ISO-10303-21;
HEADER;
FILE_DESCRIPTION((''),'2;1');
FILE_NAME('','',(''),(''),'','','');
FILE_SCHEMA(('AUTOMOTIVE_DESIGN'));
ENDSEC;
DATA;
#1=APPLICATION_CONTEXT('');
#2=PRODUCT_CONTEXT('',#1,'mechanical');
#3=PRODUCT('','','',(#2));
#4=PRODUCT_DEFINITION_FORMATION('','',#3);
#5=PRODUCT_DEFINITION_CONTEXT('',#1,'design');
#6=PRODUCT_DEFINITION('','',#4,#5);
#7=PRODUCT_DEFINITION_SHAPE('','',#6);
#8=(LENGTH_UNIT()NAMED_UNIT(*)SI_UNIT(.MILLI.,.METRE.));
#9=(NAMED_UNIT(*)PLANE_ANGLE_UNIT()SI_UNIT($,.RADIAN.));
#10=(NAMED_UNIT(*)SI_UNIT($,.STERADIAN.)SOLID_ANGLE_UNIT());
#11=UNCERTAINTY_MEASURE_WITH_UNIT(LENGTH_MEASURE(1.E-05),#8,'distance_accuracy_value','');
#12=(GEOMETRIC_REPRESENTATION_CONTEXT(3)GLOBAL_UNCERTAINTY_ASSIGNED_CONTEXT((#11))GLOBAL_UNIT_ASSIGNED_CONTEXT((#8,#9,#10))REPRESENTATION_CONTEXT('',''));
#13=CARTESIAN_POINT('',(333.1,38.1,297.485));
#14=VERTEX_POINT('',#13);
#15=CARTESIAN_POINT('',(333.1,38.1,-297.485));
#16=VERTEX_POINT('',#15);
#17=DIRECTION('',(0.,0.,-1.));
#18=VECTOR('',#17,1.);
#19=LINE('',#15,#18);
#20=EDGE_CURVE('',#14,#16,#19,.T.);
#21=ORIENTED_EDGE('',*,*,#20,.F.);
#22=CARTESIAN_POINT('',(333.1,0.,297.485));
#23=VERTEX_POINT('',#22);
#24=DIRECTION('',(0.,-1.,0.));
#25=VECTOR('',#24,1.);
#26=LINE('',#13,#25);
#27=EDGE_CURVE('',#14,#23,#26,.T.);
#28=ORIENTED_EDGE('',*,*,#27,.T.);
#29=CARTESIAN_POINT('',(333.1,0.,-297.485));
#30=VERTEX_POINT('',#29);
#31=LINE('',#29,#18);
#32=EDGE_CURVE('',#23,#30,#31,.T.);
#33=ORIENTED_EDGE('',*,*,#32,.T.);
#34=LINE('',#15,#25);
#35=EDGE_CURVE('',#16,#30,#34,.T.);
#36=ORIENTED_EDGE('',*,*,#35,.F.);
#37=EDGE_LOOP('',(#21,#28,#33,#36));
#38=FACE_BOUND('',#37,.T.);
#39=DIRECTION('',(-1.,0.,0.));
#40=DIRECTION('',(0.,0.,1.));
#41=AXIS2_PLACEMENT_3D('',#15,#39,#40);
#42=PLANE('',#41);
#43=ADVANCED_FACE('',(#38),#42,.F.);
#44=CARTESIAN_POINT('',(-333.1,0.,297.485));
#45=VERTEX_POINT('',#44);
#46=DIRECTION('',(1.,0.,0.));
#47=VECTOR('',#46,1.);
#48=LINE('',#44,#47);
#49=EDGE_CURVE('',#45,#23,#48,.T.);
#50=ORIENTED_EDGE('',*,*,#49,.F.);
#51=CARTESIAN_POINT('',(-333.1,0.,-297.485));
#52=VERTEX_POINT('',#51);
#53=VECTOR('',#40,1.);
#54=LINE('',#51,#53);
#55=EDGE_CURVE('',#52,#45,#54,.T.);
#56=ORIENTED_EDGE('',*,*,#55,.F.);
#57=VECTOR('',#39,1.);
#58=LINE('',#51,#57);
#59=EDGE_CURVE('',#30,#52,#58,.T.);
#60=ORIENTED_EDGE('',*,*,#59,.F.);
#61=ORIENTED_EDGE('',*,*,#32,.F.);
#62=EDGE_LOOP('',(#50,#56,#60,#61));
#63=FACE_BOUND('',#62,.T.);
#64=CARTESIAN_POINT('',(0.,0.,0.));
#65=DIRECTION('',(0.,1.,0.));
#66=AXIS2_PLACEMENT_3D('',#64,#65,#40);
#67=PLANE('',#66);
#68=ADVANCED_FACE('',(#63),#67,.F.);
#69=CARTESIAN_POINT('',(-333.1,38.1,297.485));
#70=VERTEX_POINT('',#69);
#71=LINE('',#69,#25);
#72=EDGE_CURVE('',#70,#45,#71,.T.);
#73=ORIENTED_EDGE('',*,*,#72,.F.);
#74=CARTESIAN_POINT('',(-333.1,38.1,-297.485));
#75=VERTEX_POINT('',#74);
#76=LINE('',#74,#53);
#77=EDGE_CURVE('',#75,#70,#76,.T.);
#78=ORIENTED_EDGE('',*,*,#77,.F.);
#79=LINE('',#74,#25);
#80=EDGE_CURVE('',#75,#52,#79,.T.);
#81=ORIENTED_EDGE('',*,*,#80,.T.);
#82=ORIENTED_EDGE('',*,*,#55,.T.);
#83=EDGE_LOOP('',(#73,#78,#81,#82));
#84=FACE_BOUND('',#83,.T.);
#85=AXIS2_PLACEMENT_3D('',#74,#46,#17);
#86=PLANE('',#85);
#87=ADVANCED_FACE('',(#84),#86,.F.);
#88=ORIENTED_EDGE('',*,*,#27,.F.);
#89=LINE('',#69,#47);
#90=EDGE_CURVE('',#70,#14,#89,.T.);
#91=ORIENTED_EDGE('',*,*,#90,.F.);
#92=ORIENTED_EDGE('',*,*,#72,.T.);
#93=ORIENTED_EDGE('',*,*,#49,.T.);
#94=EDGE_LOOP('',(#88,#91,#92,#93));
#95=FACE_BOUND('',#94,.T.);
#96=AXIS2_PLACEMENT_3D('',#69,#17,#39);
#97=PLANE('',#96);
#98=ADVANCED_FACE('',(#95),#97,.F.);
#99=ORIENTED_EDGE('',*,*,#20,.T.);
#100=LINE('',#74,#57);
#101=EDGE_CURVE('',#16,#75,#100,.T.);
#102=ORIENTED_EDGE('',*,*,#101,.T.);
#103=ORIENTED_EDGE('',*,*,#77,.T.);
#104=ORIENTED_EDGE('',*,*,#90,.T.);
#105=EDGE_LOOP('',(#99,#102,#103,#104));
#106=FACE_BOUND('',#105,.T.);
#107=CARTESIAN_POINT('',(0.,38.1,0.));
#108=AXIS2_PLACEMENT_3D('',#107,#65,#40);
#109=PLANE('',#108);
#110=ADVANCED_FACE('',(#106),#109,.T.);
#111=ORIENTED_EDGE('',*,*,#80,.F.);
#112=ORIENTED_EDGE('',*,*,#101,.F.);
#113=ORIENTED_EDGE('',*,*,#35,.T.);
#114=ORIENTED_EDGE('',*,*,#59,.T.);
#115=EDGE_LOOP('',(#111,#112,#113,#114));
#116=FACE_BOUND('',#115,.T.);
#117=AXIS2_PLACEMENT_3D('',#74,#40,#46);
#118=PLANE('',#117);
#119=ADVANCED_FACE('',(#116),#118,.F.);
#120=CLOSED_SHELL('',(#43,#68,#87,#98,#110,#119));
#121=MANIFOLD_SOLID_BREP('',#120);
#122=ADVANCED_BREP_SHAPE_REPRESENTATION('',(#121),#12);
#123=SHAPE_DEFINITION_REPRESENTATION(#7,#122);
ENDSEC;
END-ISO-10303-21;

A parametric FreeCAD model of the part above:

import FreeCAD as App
import Part
import Sketcher

V = App.Vector

doc = App.newDocument("Part")
params = doc.addObject("Spreadsheet::Sheet", "Params")
for row, (alias, value) in enumerate([
    ("sketch1_width", "666.2 mm"),
    ("sketch1_height", "594.97 mm"),
    ("pad1_length", "38.1 mm"),
], start=1):
    params.set(f"A{row}", alias)
    params.set(f"B{row}", "=" + value)
    params.setAlias(f"B{row}", alias)

body = doc.addObject("PartDesign::Body", "Body")

# Sketch on XZ plane
sketch1 = doc.addObject("Sketcher::SketchObject", "Sketch")
body.addObject(sketch1)
sketch1.AttachmentSupport = (doc.XZ_Plane, [""])
sketch1.MapMode = "FlatFace"
sketch1.addGeometry([
    Part.LineSegment(V(-333, -297, 0), V(-333, 297, 0)),
    Part.LineSegment(V(-333, 297, 0), V(333, 297, 0)),
    Part.LineSegment(V(333, 297, 0), V(333, -297, 0)),
    Part.LineSegment(V(333, -297, 0), V(-333, -297, 0)),
], False)
sketch1.addConstraint([
    Sketcher.Constraint("Coincident", 0, 2, 1, 1),
    Sketcher.Constraint("Coincident", 1, 2, 2, 1),
    Sketcher.Constraint("Coincident", 2, 2, 3, 1),
    Sketcher.Constraint("Coincident", 3, 2, 0, 1),
    Sketcher.Constraint("Vertical", 0),
    Sketcher.Constraint("Horizontal", 1),
    Sketcher.Constraint("Vertical", 2),
    Sketcher.Constraint("Horizontal", 3),
    Sketcher.Constraint("Symmetric", 0, 2, 2, 2, -1, 1),
    Sketcher.Constraint("DistanceX", 1, 1, 1, 2, 666.2),
    Sketcher.Constraint("DistanceY", 0, 1, 0, 2, 594.97),
])
sketch1.setExpression("Constraints[9]", "Params.sketch1_width")
sketch1.setExpression("Constraints[10]", "Params.sketch1_height")
pad1 = doc.addObject("PartDesign::Pad", "Pad")
body.addObject(pad1)
pad1.Profile = sketch1
pad1.setExpression("Length", "Params.pad1_length")
pad1.Reversed = True

doc.recompute()
